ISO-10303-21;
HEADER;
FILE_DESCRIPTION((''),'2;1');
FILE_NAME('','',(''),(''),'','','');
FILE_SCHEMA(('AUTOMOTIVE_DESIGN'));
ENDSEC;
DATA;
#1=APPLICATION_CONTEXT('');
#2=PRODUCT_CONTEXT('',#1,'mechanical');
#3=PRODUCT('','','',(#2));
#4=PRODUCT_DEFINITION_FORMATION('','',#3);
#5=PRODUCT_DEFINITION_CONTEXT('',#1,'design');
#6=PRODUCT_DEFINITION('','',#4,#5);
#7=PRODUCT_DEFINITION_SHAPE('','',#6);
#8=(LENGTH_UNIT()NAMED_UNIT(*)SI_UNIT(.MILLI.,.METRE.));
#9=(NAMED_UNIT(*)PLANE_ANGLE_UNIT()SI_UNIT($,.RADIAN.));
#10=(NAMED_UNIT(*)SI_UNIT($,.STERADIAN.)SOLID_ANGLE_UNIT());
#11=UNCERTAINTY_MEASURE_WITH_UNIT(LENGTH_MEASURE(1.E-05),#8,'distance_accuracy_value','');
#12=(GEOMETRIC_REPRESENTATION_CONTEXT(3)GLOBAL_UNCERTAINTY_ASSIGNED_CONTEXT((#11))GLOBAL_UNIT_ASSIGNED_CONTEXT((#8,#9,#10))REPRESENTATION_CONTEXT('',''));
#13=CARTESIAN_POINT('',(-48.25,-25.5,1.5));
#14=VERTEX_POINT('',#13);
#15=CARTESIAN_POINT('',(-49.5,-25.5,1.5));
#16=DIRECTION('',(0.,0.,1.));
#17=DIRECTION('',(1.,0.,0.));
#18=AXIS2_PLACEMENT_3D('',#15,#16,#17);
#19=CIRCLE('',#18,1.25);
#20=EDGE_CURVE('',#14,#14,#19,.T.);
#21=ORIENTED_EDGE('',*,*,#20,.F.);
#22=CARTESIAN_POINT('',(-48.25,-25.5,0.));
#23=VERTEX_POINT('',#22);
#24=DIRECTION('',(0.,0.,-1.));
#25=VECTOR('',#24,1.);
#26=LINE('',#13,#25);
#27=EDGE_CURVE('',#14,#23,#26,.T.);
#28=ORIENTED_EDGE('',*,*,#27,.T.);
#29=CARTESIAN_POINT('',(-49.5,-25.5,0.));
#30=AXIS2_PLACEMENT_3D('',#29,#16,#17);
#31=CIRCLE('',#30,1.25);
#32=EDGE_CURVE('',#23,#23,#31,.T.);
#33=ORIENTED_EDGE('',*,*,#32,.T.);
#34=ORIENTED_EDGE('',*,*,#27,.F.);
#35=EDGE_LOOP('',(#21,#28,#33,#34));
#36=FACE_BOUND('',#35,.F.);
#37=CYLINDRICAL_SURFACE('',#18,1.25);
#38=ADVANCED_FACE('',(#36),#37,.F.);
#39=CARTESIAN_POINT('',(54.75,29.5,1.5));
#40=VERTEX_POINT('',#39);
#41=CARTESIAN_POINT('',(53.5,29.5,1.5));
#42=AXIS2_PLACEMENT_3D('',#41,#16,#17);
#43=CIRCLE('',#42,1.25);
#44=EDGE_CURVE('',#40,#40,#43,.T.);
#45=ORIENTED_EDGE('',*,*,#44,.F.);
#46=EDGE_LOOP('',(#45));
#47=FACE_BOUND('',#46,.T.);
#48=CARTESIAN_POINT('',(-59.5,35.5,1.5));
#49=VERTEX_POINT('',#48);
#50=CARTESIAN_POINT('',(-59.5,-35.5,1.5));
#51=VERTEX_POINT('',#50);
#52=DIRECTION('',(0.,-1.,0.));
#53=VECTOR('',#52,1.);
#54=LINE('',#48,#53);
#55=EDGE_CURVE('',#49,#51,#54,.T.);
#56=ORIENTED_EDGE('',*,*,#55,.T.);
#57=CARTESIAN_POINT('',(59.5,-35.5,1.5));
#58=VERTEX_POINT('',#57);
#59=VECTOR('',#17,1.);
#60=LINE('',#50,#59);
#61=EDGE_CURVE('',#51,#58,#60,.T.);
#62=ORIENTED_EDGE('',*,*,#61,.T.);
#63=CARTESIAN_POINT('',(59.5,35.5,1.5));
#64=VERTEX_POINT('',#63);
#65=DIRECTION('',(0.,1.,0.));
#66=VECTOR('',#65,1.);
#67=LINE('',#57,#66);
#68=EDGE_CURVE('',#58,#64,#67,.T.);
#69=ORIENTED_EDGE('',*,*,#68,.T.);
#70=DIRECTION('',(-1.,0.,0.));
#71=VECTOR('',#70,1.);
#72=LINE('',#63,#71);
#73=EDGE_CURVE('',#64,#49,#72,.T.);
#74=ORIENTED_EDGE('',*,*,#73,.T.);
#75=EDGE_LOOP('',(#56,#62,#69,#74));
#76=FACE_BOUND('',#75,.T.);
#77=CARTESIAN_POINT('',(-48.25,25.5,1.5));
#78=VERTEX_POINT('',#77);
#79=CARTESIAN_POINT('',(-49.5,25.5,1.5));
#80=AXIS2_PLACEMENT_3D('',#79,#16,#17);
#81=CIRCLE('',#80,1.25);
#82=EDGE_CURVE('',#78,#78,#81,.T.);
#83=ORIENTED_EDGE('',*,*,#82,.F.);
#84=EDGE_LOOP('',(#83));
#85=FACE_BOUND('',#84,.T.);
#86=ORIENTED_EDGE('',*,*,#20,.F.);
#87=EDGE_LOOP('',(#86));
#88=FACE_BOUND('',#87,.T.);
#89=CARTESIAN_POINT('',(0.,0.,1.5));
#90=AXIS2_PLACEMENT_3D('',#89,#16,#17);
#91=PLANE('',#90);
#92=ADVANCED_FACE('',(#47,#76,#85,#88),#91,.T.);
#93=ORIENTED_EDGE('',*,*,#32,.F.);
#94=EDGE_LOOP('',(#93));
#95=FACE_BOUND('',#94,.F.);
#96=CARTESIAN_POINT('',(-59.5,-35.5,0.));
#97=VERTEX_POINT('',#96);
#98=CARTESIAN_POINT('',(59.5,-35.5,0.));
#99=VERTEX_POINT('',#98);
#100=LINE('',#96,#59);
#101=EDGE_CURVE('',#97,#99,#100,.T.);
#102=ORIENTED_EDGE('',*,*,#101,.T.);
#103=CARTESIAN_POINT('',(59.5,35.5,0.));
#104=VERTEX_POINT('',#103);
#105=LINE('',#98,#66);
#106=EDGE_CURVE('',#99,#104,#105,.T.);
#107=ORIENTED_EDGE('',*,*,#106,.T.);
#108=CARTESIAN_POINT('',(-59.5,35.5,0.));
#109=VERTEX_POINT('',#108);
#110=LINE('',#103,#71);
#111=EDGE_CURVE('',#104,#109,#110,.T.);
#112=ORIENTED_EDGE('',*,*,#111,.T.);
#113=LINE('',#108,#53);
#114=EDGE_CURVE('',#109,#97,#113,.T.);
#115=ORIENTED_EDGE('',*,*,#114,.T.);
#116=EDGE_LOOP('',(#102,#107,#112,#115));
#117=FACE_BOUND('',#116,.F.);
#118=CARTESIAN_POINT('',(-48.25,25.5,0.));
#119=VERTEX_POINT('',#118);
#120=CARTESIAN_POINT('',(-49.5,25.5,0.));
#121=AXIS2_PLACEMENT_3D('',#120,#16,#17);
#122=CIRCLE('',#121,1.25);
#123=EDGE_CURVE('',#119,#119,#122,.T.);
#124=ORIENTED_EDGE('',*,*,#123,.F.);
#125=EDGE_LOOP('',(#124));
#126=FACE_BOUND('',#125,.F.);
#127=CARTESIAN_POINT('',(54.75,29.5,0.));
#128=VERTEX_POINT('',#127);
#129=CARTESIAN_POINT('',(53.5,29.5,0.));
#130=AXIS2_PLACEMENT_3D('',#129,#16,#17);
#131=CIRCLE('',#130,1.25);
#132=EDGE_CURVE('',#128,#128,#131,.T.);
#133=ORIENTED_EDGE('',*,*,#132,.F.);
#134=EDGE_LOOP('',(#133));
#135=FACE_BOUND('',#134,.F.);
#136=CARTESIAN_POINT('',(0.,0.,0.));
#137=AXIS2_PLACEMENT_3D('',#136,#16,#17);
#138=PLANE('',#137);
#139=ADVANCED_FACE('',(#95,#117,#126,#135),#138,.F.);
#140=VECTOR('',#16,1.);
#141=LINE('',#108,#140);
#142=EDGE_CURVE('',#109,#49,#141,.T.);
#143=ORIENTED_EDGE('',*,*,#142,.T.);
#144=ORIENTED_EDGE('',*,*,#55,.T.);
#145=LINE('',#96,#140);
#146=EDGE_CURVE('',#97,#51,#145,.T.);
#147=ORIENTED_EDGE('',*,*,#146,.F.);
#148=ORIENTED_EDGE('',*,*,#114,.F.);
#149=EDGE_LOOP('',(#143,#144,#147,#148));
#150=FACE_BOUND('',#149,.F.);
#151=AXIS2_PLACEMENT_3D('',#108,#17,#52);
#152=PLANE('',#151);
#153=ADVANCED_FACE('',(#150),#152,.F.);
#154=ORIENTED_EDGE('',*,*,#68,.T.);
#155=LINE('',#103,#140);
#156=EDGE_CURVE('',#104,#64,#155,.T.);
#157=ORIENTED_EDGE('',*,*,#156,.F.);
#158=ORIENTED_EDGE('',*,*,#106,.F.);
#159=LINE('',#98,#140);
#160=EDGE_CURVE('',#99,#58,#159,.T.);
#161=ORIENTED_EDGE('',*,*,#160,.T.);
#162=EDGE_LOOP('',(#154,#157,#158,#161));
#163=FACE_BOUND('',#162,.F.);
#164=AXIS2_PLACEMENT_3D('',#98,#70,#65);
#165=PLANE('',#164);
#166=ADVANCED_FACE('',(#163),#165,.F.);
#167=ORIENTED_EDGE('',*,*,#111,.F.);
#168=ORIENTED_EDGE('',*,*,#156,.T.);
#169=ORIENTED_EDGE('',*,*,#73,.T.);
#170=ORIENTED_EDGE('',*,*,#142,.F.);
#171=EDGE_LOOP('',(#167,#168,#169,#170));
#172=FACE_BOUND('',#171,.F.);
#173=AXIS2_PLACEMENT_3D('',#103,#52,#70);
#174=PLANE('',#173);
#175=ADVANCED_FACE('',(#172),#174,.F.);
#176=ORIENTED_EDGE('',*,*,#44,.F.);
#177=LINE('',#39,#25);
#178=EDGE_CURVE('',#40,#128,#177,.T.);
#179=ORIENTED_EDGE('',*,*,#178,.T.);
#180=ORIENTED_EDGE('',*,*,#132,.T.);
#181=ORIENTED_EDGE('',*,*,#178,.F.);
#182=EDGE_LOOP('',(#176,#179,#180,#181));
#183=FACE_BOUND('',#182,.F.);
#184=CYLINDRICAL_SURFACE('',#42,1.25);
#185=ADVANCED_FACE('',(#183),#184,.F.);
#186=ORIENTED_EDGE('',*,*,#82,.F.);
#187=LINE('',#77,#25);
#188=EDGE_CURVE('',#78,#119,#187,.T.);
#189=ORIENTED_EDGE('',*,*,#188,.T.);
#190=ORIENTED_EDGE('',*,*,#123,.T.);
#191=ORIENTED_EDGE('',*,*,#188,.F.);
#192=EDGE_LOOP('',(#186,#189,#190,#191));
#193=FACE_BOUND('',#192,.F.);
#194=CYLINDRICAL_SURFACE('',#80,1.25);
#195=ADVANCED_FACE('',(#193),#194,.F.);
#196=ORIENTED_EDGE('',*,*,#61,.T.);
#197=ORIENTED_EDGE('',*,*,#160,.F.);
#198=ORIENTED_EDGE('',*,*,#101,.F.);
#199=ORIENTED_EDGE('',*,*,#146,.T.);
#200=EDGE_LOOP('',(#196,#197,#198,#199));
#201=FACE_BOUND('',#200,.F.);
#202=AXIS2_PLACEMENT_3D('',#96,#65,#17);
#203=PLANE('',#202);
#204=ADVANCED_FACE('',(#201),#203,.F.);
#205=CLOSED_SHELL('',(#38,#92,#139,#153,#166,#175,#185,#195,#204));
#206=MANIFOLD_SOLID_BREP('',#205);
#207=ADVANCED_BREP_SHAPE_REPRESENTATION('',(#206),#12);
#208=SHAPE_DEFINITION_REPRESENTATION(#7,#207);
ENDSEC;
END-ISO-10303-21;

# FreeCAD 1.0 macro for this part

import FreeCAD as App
import Part
import Sketcher
from FreeCAD import Vector


def add_polygon(sketch, points):
    """Adds a closed chain of lines whose ends are joined by coincident constraints."""
    first, n = sketch.GeometryCount, len(points)
    for a, b in zip(points, points[1:] + points[:1]):
        sketch.addGeometry(Part.LineSegment(App.Vector(*a, 0), App.Vector(*b, 0)), False)
    for i in range(n):
        sketch.addConstraint(Sketcher.Constraint("Coincident", first + i, 2, first + (i + 1) % n, 1))

doc = App.newDocument("Part")
body = doc.addObject("PartDesign::Body", "Body")

# Sketch on XY plane
sketch1 = doc.addObject("Sketcher::SketchObject", "Sketch")
body.addObject(sketch1)
sketch1.AttachmentSupport = (doc.XY_Plane, [""])
sketch1.MapMode = "FlatFace"
add_polygon(sketch1, [(-59.5, 35.5), (-59.5, -35.5), (59.5, -35.5), (59.5, 35.5)])  # lines 0-3
sketch1.addConstraint([
    Sketcher.Constraint("Vertical", 0),
    Sketcher.Constraint("Horizontal", 1),
    Sketcher.Constraint("Vertical", 2),
    Sketcher.Constraint("Horizontal", 3),
    Sketcher.Constraint("Symmetric", 0, 2, 2, 2, -1, 1),
    Sketcher.Constraint("DistanceX", 1, 1, 1, 2, 119.0),
    Sketcher.Constraint("DistanceY", 0, 2, 0, 1, 71.0),
])
pad1 = doc.addObject("PartDesign::Pad", "Pad")
body.addObject(pad1)
pad1.Profile = sketch1
pad1.Length = 1.5

# Sketch on XY plane
sketch2 = doc.addObject("Sketcher::SketchObject", "Sketch001")
body.addObject(sketch2)
sketch2.AttachmentSupport = (doc.XY_Plane, [""])
sketch2.MapMode = "FlatFace"
sketch2.AttachmentOffset = App.Placement(Vector(0, 0, 1.5), App.Rotation())
sketch2.addGeometry([
    Part.Circle(Vector(-49.5, 25.5, 0), Vector(0, 0, 1), 1.25),
    Part.Circle(Vector(-49.5, -25.5, 0), Vector(0, 0, 1), 1.25),
    Part.Circle(Vector(53.5, 29.5, 0), Vector(0, 0, 1), 1.25),
], False)
sketch2.addConstraint([
    Sketcher.Constraint("Equal", 0, 1),
    Sketcher.Constraint("Equal", 1, 2),
    Sketcher.Constraint("Symmetric", 0, 3, 1, 3, -1),
    Sketcher.Constraint("Diameter", 0, 2.5),
    Sketcher.Constraint("DistanceY", 1, 3, 0, 3, 51.0),
    Sketcher.Constraint("DistanceX", 0, 3, 2, 3, 103.0),
    Sketcher.Constraint("DistanceY", 0, 3, 2, 3, 4.0),
    Sketcher.Constraint("DistanceX", 0, 3, -1, 1, 49.5),
])
pocket1 = doc.addObject("PartDesign::Pocket", "Pocket")
body.addObject(pocket1)
pocket1.Profile = sketch2
pocket1.Length = 1.5

doc.recompute()
